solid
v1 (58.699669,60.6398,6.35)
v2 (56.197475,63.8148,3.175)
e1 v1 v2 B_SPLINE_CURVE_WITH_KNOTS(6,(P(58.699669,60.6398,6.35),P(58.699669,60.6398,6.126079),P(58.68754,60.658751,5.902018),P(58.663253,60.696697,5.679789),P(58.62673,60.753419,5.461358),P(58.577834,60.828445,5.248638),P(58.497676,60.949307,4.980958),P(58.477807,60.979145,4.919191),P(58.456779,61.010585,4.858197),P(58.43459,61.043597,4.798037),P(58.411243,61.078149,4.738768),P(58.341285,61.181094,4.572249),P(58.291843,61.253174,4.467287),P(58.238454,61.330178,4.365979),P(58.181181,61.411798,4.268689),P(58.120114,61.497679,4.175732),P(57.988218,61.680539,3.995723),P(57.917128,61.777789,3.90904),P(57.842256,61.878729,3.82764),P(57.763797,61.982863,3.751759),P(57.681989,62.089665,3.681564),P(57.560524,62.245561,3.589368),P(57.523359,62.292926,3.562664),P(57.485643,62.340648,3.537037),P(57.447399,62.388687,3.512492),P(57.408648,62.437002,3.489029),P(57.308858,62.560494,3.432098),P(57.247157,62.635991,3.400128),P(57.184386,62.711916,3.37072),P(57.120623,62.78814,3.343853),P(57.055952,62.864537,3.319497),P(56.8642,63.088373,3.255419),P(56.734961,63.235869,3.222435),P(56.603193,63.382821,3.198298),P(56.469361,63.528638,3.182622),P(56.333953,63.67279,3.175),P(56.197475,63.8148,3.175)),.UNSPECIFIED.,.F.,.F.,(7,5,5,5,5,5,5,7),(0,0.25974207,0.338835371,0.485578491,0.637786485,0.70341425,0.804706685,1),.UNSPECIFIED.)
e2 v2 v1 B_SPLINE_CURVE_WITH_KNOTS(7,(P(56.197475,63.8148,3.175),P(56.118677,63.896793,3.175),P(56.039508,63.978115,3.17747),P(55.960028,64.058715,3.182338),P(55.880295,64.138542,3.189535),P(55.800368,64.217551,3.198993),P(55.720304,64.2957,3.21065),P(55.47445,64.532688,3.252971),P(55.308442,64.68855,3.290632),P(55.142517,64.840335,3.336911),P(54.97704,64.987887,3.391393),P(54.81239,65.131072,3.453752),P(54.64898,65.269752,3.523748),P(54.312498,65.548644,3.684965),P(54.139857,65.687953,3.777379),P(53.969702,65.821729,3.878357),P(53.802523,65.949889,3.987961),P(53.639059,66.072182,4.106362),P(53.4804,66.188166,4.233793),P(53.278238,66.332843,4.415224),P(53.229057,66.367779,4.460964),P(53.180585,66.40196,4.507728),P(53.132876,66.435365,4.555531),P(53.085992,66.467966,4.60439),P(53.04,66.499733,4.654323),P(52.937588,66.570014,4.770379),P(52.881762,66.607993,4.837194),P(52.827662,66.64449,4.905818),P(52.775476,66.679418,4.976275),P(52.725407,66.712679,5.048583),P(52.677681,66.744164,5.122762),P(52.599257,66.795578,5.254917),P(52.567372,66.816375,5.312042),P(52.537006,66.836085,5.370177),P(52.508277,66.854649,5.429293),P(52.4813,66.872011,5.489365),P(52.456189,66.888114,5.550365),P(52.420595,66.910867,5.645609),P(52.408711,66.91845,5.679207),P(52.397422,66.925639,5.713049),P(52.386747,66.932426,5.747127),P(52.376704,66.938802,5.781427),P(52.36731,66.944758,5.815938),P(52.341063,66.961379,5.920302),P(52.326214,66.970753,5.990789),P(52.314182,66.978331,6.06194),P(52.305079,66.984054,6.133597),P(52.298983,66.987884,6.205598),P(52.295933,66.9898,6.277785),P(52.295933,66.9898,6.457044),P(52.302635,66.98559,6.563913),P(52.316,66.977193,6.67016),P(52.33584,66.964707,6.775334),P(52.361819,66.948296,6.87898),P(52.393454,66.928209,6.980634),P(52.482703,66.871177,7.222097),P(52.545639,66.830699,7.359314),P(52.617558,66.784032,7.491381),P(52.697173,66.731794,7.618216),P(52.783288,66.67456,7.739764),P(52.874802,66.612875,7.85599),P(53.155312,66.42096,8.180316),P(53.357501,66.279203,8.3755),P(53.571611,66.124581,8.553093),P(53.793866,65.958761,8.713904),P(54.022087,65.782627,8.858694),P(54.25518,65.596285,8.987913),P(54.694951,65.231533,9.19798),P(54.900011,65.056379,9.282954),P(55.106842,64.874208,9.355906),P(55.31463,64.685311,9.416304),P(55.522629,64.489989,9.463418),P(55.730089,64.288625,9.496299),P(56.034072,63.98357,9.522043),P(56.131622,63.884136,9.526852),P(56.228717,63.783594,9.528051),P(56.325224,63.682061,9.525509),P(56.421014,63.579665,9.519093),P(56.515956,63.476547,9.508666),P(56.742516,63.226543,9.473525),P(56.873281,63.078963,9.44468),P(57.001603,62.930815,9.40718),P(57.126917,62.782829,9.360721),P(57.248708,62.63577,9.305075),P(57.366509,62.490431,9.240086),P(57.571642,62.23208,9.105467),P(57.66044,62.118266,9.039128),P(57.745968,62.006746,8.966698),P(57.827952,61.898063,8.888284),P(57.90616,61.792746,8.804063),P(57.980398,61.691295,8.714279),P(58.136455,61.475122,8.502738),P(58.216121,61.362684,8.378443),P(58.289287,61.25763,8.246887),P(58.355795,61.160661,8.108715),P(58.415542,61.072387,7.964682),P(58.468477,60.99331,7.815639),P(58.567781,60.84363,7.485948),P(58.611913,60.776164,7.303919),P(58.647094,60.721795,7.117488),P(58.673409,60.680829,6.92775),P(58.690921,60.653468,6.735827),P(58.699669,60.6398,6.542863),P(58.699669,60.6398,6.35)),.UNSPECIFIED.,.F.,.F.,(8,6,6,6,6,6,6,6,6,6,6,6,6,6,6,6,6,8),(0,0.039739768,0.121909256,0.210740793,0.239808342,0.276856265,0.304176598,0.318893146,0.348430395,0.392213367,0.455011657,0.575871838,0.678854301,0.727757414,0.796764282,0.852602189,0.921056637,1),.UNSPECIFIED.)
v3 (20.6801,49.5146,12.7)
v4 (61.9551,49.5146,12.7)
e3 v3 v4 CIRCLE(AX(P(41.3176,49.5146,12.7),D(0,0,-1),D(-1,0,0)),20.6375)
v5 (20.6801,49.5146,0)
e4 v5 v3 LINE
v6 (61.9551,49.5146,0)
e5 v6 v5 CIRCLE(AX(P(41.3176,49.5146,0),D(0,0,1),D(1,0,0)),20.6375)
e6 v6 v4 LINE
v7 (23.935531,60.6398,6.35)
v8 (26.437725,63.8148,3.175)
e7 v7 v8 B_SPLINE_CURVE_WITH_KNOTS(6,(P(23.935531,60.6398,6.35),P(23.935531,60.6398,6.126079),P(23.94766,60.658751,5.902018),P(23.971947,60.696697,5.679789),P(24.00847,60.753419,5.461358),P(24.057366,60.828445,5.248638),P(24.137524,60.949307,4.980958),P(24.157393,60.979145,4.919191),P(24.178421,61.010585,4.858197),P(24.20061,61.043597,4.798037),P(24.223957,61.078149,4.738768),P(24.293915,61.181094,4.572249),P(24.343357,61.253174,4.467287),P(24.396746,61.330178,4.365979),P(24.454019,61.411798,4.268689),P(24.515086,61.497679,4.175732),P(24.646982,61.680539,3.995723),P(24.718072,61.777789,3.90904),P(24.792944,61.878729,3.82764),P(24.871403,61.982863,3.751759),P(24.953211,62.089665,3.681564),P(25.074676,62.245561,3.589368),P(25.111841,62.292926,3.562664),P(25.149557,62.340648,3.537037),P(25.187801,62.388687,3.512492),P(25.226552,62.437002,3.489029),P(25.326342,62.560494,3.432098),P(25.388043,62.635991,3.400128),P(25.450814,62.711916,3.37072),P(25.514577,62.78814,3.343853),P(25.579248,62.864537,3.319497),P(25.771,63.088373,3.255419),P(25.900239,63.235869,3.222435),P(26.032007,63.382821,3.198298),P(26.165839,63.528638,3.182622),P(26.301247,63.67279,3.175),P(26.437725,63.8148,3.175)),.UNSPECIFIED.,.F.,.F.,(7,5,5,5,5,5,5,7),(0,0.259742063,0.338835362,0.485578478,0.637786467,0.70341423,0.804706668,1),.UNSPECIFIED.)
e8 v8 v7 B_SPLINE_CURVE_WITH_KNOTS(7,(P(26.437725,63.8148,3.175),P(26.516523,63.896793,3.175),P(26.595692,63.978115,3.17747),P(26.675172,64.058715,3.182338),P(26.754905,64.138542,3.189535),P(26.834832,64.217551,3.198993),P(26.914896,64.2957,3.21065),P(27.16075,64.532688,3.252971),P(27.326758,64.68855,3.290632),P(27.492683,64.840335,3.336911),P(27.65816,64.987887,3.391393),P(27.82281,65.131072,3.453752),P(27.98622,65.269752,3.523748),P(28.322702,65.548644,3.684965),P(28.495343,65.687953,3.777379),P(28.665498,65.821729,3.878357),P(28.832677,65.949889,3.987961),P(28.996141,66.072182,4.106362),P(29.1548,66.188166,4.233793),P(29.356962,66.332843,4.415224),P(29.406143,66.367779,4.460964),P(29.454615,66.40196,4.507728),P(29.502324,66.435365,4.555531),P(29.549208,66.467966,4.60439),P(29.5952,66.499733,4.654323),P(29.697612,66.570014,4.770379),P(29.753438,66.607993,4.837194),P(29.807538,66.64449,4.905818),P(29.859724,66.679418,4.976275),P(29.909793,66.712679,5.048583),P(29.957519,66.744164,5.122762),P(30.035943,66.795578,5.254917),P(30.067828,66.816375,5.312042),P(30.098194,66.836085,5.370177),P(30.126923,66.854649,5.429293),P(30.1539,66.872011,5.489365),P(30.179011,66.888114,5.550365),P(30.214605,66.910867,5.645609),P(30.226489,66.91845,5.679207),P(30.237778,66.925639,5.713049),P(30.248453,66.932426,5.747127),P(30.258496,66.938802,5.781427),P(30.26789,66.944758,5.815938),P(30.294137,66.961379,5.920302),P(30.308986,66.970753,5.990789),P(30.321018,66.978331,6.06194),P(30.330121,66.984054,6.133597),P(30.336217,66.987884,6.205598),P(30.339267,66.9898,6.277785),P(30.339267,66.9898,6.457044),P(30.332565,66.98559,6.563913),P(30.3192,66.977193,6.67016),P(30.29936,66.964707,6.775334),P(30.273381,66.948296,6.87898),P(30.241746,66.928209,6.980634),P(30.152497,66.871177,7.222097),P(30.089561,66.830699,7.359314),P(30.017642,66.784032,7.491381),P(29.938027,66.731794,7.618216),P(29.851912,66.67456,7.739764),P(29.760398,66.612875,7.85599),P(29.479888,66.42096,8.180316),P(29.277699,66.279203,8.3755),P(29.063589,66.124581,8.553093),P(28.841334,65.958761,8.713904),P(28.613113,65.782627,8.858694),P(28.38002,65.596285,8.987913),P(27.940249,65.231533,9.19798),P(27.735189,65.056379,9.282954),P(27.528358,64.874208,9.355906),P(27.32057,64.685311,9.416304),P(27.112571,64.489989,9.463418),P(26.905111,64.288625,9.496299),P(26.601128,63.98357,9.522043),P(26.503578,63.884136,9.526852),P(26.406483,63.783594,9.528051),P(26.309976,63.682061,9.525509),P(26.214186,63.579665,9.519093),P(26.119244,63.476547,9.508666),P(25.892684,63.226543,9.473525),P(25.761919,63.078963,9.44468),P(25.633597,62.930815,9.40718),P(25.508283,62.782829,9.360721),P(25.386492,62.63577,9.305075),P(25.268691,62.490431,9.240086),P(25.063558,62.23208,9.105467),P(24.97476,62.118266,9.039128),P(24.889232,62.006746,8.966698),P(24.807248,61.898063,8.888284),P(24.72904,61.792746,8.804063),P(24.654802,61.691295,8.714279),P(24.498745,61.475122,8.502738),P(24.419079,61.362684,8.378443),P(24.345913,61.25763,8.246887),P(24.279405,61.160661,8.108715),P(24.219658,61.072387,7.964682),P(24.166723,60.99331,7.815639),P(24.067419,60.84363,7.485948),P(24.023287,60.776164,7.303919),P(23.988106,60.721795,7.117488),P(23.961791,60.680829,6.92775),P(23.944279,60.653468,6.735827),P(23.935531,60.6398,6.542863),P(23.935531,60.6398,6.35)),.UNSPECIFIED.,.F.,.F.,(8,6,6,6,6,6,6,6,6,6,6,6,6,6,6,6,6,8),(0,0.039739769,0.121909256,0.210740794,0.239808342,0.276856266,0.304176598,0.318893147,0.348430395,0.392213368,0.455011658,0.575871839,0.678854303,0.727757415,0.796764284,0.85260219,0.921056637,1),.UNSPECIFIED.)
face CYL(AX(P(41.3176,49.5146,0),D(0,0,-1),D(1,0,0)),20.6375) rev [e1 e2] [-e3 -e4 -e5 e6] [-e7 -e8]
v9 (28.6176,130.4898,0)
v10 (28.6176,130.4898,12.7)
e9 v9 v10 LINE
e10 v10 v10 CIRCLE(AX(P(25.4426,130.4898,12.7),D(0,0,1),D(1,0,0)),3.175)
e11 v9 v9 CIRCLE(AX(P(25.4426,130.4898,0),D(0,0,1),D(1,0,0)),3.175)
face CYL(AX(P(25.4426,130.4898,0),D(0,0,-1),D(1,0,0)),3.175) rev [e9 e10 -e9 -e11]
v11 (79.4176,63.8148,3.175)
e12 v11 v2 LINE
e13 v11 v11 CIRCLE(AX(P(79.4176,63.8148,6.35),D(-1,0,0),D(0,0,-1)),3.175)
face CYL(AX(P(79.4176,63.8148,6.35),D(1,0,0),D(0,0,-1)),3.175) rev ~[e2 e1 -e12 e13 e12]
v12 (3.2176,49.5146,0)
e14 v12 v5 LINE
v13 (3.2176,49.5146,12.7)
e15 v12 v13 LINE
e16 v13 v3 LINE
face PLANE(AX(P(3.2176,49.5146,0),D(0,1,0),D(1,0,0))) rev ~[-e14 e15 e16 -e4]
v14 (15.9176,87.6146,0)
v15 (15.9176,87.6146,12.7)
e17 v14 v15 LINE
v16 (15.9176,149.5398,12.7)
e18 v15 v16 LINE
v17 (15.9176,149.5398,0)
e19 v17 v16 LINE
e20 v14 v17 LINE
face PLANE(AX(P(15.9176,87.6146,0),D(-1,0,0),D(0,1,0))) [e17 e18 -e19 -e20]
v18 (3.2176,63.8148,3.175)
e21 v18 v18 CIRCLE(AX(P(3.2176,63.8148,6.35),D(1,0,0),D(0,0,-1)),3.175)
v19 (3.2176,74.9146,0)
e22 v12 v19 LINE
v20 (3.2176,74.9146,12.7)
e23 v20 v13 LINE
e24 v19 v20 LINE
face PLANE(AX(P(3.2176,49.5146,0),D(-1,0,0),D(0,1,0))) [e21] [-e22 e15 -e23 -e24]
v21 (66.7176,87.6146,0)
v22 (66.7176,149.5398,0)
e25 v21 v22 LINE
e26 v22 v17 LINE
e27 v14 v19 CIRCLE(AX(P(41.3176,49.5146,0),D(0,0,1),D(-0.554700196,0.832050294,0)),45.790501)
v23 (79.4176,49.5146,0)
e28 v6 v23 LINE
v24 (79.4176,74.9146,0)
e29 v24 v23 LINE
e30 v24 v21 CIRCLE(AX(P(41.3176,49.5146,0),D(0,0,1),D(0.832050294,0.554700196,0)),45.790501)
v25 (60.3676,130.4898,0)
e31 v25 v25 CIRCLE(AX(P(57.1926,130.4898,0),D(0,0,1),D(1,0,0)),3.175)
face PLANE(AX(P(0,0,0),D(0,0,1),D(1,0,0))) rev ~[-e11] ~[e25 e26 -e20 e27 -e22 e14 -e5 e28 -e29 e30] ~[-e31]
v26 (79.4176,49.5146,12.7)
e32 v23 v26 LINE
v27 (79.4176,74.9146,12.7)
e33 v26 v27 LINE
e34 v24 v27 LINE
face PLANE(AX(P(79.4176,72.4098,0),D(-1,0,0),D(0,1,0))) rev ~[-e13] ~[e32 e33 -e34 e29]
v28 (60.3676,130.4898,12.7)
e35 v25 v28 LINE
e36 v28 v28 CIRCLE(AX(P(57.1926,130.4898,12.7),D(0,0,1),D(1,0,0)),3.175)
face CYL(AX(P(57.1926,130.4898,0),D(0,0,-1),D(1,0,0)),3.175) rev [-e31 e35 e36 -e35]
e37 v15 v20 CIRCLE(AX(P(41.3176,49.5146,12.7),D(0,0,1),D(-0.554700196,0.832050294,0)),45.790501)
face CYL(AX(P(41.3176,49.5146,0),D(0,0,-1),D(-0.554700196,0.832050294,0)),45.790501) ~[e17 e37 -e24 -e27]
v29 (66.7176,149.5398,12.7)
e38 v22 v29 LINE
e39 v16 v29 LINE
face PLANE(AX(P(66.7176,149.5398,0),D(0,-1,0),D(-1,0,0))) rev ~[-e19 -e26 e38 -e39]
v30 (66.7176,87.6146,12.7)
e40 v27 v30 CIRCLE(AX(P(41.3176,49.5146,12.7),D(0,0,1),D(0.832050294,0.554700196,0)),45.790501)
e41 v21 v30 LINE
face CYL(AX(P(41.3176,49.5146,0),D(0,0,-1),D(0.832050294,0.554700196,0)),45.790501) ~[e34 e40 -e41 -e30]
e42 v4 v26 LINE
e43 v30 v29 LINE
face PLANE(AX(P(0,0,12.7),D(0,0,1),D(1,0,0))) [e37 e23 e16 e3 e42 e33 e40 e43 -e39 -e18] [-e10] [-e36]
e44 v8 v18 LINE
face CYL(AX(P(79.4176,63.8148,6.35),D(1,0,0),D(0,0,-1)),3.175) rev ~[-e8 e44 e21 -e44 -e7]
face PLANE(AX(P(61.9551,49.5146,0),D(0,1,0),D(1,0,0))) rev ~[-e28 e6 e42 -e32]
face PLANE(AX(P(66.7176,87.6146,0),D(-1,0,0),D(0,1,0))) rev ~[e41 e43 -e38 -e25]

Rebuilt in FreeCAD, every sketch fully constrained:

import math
import FreeCAD as App
import Part
import Sketcher
from FreeCAD import Vector
Q = App.Units.Quantity

doc = App.newDocument("Part")
body = doc.addObject("PartDesign::Body", "Body")

# Sketch on XY plane
sketch1 = doc.addObject("Sketcher::SketchObject", "Sketch")
body.addObject(sketch1)
sketch1.AttachmentSupport = (doc.XY_Plane, [""])
sketch1.MapMode = "FlatFace"
sketch1.addGeometry([
    Part.LineSegment(Vector(66.7, 149.5, 0), Vector(15.9, 149.5, 0)),  # 0
    Part.LineSegment(Vector(15.9, 149.5, 0), Vector(15.9, 87.6, 0)),  # 1
    Part.ArcOfCircle(Part.Circle(Vector(41.3, 49.5, 0), Vector(0, 0, 1), 45.8), math.radians(124), math.radians(146)),  # 2
    Part.LineSegment(Vector(3.2, 74.9, 0), Vector(3.2, 49.5, 0)),  # 3
    Part.LineSegment(Vector(3.2, 49.5, 0), Vector(20.7, 49.5, 0)),  # 4
    Part.ArcOfCircle(Part.Circle(Vector(41.3, 49.5, 0), Vector(0, 0, 1), 20.6), math.radians(0), math.radians(180)),  # 5
    Part.LineSegment(Vector(62, 49.5, 0), Vector(79.4, 49.5, 0)),  # 6
    Part.LineSegment(Vector(79.4, 49.5, 0), Vector(79.4, 74.9, 0)),  # 7
    Part.ArcOfCircle(Part.Circle(Vector(41.3, 49.5, 0), Vector(0, 0, 1), 45.8), math.radians(34), math.radians(56)),  # 8
    Part.LineSegment(Vector(66.7, 87.6, 0), Vector(66.7, 149.5, 0)),  # 9
    Part.Circle(Vector(57.2, 130.5, 0), Vector(0, 0, 1), 3.2),  # 10
    Part.Circle(Vector(25.4, 130.5, 0), Vector(0, 0, 1), 3.2),  # 11
], False)
sketch1.addConstraint([
    Sketcher.Constraint("Coincident", 0, 2, 1, 1),
    Sketcher.Constraint("Coincident", 1, 2, 2, 1),
    Sketcher.Constraint("Coincident", 2, 2, 3, 1),
    Sketcher.Constraint("Coincident", 3, 2, 4, 1),
    Sketcher.Constraint("Coincident", 4, 2, 5, 2),
    Sketcher.Constraint("Coincident", 5, 1, 6, 1),
    Sketcher.Constraint("Coincident", 6, 2, 7, 1),
    Sketcher.Constraint("Coincident", 7, 2, 8, 1),
    Sketcher.Constraint("Coincident", 8, 2, 9, 1),
    Sketcher.Constraint("Coincident", 9, 2, 0, 1),
    Sketcher.Constraint("Horizontal", 0),
    Sketcher.Constraint("Vertical", 1),
    Sketcher.Constraint("Vertical", 3),
    Sketcher.Constraint("Horizontal", 4),
    Sketcher.Constraint("Horizontal", 6),
    Sketcher.Constraint("Vertical", 7),
    Sketcher.Constraint("Vertical", 9),
    Sketcher.Constraint("Coincident", 5, 3, 2, 3),
    Sketcher.Constraint("Coincident", 8, 3, 2, 3),
    Sketcher.Constraint("Equal", 2, 8),
    Sketcher.Constraint("Equal", 10, 11),
    Sketcher.Constraint("Horizontal", 10, 3, 11, 3),
    Sketcher.Constraint("Horizontal", 8, 3, 3, 2),
    Sketcher.Constraint("Horizontal", 4, 2, 5, 1),
    Sketcher.Constraint("Horizontal", 2, 2, 7, 2),
    Sketcher.Constraint("Horizontal", 1, 2, 8, 2),
    Sketcher.Constraint("Diameter", 10, Q("0.25 in")),
    Sketcher.Constraint("DistanceY", 3, 2, 3, 1, Q("1 in")),
    Sketcher.Constraint("Radius", 5, Q("0.8125 in")),
    Sketcher.Constraint("DistanceX", 0, 2, 2, 3, Q("1 in")),
    Sketcher.Constraint("DistanceY", 11, 3, 0, 2, Q("0.75 in")),
    Sketcher.Constraint("DistanceX", 0, 2, 10, 3, Q("1.625 in")),
    Sketcher.Constraint("DistanceY", 2, 3, 0, 2, Q("3.938 in")),
    Sketcher.Constraint("DistanceX", 11, 3, 9, 2, Q("1.625 in")),
    Sketcher.Constraint("DistanceY", 2, 3, 1, 2, Q("1.5 in")),
    Sketcher.Constraint("DistanceY", -1, 1, 2, 3, Q("1.9494 in")),
    Sketcher.Constraint("DistanceX", -1, 1, 2, 3, 41.3176),
])
pad1 = doc.addObject("PartDesign::Pad", "Pad")
body.addObject(pad1)
pad1.Profile = sketch1
pad1.Length = Q("0.5 in")

# Sketch on YZ plane
sketch2 = doc.addObject("Sketcher::SketchObject", "Sketch001")
body.addObject(sketch2)
sketch2.AttachmentSupport = (doc.YZ_Plane, [""])
sketch2.MapMode = "FlatFace"
sketch2.AttachmentOffset = App.Placement(Vector(0, 0, 79.4176), App.Rotation())
sketch2.addGeometry(Part.Circle(Vector(63.8, 6.3, 0), Vector(0, 0, 1), 3.2), False)
sketch2.addConstraint([
    Sketcher.Constraint("Diameter", 0, Q("0.25 in")),
    Sketcher.Constraint("DistanceY", -1, 1, 0, 3, Q("0.25 in")),
    Sketcher.Constraint("DistanceX", -1, 1, 0, 3, Q("2.5124 in")),
])
pocket1 = doc.addObject("PartDesign::Pocket", "Pocket")
body.addObject(pocket1)
pocket1.Profile = sketch2
pocket1.Length = Q("4.9375 in")

doc.recompute()
